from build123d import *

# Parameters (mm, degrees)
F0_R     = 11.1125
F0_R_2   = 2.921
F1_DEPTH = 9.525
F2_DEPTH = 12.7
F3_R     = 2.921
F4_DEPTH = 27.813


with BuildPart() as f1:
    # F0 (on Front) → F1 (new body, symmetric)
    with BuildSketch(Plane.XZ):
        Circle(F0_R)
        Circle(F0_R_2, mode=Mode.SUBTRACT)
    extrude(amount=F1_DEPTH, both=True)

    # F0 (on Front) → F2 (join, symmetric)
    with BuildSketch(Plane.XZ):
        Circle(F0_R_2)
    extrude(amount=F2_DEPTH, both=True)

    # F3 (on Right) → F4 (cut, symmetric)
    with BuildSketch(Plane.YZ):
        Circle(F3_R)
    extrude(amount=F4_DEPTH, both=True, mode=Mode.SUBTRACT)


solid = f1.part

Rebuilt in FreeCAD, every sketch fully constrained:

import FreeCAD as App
import Part
import Sketcher
Q = App.Units.Quantity

doc = App.newDocument("Part")
params = doc.addObject("Spreadsheet::Sheet", "Params")
for row, (alias, value) in enumerate([
    ("sketch1_diameter", "0.23 in"),
    ("sketch1_diameter2", "0.875 in"),
    ("pad1_length", "0.75 in"),
    ("sketch2_diameter", "0.23 in"),
    ("pad2_length", "1 in"),
    ("sketch3_diameter", "0.23 in"),
    ("pocket1_length", "2.19 in"),
], start=1):
    params.set(f"A{row}", alias)
    params.set(f"B{row}", "=" + value)
    params.setAlias(f"B{row}", alias)

body = doc.addObject("PartDesign::Body", "Body")

# Sketch on XZ plane
sketch1 = body.newObject("Sketcher::SketchObject", "Sketch")
sketch1.AttachmentSupport = (doc.getObject("XZ_Plane"), [""])
sketch1.MapMode = "FlatFace"
sketch1.addGeometry([
    Part.Circle(App.Vector(0, 0, 0), App.Vector(0, 0, 1), 11.1),
    Part.Circle(App.Vector(0, 0, 0), App.Vector(0, 0, 1), 2.9),
], False)
sketch1.addConstraint([
    Sketcher.Constraint("Coincident", 0, 3, -1, 1),
    Sketcher.Constraint("Coincident", 1, 3, -1, 1),
    Sketcher.Constraint("Diameter", 1, Q("0.23 in")),
    Sketcher.Constraint("Diameter", 0, Q("0.875 in")),
])
sketch1.setExpression("Constraints[2]", "Params.sketch1_diameter")
sketch1.setExpression("Constraints[3]", "Params.sketch1_diameter2")
pad1 = body.newObject("PartDesign::Pad", "Pad")
pad1.Profile = sketch1
pad1.setExpression("Length", "Params.pad1_length")
pad1.Midplane = True

# Sketch on XZ plane
sketch2 = body.newObject("Sketcher::SketchObject", "Sketch001")
sketch2.AttachmentSupport = (doc.getObject("XZ_Plane"), [""])
sketch2.MapMode = "FlatFace"
sketch2.addGeometry(Part.Circle(App.Vector(0, 0, 0), App.Vector(0, 0, 1), 2.9), False)
sketch2.addConstraint([
    Sketcher.Constraint("Coincident", 0, 3, -1, 1),
    Sketcher.Constraint("Diameter", 0, Q("0.23 in")),
])
sketch2.setExpression("Constraints[1]", "Params.sketch2_diameter")
pad2 = body.newObject("PartDesign::Pad", "Pad001")
pad2.Profile = sketch2
pad2.setExpression("Length", "Params.pad2_length")
pad2.Midplane = True

# Sketch on YZ plane
sketch3 = body.newObject("Sketcher::SketchObject", "Sketch002")
sketch3.AttachmentSupport = (doc.getObject("YZ_Plane"), [""])
sketch3.MapMode = "FlatFace"
sketch3.addGeometry(Part.Circle(App.Vector(0, 0, 0), App.Vector(0, 0, 1), 2.9), False)
sketch3.addConstraint([
    Sketcher.Constraint("Coincident", 0, 3, -1, 1),
    Sketcher.Constraint("Diameter", 0, Q("0.23 in")),
])
sketch3.setExpression("Constraints[1]", "Params.sketch3_diameter")
pocket1 = body.newObject("PartDesign::Pocket", "Pocket")
pocket1.Profile = sketch3
pocket1.setExpression("Length", "Params.pocket1_length")
pocket1.Midplane = True

doc.recompute()
